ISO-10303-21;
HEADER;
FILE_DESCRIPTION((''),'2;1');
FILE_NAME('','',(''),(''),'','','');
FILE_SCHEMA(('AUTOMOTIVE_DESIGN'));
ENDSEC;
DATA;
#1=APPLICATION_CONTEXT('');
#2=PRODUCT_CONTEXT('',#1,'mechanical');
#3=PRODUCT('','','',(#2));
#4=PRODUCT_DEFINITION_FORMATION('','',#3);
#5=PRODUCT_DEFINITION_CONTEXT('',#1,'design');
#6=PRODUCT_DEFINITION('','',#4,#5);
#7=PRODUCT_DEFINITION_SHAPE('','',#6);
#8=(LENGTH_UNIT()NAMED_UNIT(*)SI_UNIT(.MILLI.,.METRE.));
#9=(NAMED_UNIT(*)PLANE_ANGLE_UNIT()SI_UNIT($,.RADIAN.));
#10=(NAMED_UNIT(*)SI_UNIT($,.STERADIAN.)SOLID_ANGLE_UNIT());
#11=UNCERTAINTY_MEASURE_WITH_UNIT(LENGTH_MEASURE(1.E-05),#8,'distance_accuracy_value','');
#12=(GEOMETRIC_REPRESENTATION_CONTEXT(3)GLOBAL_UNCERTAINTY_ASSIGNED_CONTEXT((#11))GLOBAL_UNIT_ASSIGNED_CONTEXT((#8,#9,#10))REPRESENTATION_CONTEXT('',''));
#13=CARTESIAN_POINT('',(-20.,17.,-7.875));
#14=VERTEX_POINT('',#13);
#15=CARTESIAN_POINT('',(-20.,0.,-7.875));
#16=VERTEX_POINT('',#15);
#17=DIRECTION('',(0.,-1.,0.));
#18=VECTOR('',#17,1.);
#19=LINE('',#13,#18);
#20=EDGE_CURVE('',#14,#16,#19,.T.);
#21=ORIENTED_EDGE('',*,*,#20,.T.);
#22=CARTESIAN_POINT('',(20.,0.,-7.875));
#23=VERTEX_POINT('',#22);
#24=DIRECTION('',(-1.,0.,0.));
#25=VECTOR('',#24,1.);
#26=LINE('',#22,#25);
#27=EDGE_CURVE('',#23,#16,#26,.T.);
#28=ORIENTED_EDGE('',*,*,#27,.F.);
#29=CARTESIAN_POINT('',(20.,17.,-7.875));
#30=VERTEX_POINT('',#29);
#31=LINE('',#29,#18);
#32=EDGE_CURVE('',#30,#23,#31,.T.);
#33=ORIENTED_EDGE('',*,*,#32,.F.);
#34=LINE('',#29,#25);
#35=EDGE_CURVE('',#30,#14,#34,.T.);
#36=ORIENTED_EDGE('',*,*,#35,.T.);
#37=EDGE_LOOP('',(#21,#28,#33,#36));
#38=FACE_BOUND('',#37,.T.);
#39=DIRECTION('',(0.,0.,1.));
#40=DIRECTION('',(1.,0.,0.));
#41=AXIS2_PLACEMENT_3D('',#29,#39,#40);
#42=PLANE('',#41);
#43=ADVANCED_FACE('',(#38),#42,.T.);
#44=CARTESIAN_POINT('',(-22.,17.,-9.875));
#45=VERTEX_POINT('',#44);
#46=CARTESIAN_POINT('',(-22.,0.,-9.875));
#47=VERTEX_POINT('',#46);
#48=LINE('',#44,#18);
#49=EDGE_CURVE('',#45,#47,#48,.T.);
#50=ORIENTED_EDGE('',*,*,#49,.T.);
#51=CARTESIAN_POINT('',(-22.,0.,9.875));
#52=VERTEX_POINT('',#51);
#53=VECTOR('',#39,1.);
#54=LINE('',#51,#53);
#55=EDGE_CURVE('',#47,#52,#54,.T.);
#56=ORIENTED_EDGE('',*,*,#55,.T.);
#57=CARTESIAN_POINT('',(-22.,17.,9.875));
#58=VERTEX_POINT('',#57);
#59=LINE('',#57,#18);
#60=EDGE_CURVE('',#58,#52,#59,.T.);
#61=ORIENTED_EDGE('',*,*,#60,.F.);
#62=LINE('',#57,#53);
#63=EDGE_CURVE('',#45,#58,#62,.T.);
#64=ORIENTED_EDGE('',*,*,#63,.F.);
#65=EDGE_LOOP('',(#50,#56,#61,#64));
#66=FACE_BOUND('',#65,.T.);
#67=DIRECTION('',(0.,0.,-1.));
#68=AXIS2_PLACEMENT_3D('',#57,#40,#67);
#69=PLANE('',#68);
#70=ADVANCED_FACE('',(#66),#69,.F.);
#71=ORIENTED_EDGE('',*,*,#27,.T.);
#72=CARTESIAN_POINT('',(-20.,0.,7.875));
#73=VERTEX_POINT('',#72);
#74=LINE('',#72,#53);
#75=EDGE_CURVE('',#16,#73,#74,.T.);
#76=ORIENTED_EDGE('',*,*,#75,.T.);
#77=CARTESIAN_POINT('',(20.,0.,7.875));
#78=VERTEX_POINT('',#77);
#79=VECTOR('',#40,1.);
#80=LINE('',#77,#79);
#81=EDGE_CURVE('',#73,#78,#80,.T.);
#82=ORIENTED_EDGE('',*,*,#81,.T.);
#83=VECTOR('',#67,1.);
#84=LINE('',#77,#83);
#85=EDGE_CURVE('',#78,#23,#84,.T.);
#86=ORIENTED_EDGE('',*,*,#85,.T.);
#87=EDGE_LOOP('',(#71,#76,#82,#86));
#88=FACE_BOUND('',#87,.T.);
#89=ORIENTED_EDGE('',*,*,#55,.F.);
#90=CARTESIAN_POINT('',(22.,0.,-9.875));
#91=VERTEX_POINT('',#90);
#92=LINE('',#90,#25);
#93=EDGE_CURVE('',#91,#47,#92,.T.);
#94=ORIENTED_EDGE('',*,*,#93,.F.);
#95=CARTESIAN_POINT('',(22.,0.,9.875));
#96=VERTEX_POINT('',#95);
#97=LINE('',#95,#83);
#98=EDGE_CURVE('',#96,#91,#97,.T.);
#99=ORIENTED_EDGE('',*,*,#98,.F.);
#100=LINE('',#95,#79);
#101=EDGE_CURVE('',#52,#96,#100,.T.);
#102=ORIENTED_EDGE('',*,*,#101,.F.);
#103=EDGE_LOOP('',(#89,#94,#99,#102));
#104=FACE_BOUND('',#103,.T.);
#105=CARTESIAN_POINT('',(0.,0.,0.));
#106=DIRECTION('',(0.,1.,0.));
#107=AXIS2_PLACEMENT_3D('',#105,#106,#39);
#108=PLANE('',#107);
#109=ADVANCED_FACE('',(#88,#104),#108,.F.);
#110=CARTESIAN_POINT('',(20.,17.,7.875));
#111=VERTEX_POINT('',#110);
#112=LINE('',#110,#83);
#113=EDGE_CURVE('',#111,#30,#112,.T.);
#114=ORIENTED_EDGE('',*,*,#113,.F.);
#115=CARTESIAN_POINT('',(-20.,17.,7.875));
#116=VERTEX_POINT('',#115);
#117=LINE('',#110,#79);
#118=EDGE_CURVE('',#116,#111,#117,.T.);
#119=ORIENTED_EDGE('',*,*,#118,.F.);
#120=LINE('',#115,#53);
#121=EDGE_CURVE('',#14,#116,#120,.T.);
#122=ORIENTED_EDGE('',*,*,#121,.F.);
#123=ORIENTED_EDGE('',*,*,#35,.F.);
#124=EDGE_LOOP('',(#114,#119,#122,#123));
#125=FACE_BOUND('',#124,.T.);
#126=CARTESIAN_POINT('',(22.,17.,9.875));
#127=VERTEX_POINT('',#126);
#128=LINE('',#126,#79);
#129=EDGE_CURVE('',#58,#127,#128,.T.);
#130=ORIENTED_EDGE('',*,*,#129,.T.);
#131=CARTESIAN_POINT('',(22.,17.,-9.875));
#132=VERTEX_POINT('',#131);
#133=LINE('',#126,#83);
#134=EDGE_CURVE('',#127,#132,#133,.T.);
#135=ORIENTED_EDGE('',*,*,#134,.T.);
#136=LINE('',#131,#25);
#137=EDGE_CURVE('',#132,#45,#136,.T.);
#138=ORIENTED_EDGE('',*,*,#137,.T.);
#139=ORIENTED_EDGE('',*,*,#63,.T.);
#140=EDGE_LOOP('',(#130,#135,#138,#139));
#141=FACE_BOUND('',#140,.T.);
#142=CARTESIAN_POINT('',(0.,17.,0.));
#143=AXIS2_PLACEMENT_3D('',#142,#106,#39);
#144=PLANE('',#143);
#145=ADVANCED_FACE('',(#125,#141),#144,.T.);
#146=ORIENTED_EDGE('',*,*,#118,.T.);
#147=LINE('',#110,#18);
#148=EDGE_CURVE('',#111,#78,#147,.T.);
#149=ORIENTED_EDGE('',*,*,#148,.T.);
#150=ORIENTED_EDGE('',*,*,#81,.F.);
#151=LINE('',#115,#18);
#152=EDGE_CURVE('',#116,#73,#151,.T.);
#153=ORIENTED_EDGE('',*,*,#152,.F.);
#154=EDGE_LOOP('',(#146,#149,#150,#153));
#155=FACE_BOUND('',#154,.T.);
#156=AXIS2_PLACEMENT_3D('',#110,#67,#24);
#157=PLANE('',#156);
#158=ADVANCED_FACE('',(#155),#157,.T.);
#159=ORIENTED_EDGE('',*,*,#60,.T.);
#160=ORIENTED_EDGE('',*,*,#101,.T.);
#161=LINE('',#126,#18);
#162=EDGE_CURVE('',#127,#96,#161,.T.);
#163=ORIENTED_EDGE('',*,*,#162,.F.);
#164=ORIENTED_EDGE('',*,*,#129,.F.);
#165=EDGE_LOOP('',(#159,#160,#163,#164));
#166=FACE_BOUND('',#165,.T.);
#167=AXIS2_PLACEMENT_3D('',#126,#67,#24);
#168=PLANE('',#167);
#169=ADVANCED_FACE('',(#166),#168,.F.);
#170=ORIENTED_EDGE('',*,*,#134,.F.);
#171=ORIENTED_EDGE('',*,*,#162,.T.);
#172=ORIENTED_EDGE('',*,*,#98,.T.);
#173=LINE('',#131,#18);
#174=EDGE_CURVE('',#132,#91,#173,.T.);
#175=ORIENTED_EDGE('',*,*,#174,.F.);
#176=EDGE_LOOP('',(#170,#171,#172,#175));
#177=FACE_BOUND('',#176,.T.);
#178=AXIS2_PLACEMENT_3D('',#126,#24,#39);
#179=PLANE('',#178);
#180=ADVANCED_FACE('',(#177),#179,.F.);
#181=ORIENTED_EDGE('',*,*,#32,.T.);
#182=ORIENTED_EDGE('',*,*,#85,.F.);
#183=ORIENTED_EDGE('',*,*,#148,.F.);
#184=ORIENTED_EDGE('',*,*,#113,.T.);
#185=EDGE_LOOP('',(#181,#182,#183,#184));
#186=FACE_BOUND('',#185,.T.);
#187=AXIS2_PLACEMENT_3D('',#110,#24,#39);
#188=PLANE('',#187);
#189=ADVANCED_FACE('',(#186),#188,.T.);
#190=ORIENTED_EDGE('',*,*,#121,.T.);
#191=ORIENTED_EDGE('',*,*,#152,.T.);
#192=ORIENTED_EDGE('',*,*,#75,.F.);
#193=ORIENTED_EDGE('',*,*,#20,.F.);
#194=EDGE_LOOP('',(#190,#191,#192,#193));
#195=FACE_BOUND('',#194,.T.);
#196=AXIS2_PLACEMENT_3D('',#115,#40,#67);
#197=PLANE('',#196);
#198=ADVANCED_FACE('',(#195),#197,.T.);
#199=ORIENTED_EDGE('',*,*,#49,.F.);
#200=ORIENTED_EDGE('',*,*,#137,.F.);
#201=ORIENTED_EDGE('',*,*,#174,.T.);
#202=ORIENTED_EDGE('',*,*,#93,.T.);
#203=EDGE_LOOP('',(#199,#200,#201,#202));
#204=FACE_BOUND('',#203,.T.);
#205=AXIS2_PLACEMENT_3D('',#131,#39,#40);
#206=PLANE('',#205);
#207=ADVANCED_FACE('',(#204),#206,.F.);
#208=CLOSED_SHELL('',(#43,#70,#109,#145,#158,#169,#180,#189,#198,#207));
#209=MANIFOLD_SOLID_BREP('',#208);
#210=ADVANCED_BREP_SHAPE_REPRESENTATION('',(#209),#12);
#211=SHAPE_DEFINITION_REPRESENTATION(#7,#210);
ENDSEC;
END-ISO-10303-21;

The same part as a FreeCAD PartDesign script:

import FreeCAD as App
import Part
import Sketcher


def add_polygon(sketch, points):
    """Adds a closed chain of lines whose ends are joined by coincident constraints."""
    first, n = sketch.GeometryCount, len(points)
    for a, b in zip(points, points[1:] + points[:1]):
        sketch.addGeometry(Part.LineSegment(App.Vector(*a, 0), App.Vector(*b, 0)), False)
    for i in range(n):
        sketch.addConstraint(Sketcher.Constraint("Coincident", first + i, 2, first + (i + 1) % n, 1))

doc = App.newDocument("Part")
params = doc.addObject("Spreadsheet::Sheet", "Params")
for row, (alias, value) in enumerate([
    ("sketch1_width", "44 mm"),
    ("sketch1_width2", "40 mm"),
    ("sketch1_height", "19.75 mm"),
    ("pad1_length", "17 mm"),
], start=1):
    params.set(f"A{row}", alias)
    params.set(f"B{row}", "=" + value)
    params.setAlias(f"B{row}", alias)

body = doc.addObject("PartDesign::Body", "Body")

# Sketch on XZ plane
sketch1 = body.newObject("Sketcher::SketchObject", "Sketch")
sketch1.AttachmentSupport = (doc.getObject("XZ_Plane"), [""])
sketch1.MapMode = "FlatFace"
add_polygon(sketch1, [(-22, -10), (-22, 10), (22, 10), (22, -10)])  # lines 0-3
add_polygon(sketch1, [(20, 8), (-20, 8), (-20, -8), (20, -8)])  # lines 4-7
sketch1.addConstraint([
    Sketcher.Constraint("Vertical", 0),
    Sketcher.Constraint("Horizontal", 1),
    Sketcher.Constraint("Vertical", 2),
    Sketcher.Constraint("Horizontal", 3),
    Sketcher.Constraint("Horizontal", 4),
    Sketcher.Constraint("Vertical", 5),
    Sketcher.Constraint("Horizontal", 6),
    Sketcher.Constraint("Vertical", 7),
    Sketcher.Constraint("Symmetric", 0, 2, 2, 2, -1, 1),
    Sketcher.Constraint("Symmetric", 4, 2, 6, 2, -1, 1),
    Sketcher.Constraint("DistanceX", 1, 1, 1, 2, 44.0),
    Sketcher.Constraint("DistanceX", 4, 2, 4, 1, 40.0),
    Sketcher.Constraint("DistanceY", 4, 2, 0, 2, 2.0),
    Sketcher.Constraint("DistanceY", 0, 1, 0, 2, 19.75),
])
sketch1.setExpression("Constraints[18]", "Params.sketch1_width")
sketch1.setExpression("Constraints[19]", "Params.sketch1_width2")
sketch1.setExpression("Constraints[21]", "Params.sketch1_height")
pad1 = body.newObject("PartDesign::Pad", "Pad")
pad1.Profile = sketch1
pad1.setExpression("Length", "Params.pad1_length")
pad1.Reversed = True

doc.recompute()
